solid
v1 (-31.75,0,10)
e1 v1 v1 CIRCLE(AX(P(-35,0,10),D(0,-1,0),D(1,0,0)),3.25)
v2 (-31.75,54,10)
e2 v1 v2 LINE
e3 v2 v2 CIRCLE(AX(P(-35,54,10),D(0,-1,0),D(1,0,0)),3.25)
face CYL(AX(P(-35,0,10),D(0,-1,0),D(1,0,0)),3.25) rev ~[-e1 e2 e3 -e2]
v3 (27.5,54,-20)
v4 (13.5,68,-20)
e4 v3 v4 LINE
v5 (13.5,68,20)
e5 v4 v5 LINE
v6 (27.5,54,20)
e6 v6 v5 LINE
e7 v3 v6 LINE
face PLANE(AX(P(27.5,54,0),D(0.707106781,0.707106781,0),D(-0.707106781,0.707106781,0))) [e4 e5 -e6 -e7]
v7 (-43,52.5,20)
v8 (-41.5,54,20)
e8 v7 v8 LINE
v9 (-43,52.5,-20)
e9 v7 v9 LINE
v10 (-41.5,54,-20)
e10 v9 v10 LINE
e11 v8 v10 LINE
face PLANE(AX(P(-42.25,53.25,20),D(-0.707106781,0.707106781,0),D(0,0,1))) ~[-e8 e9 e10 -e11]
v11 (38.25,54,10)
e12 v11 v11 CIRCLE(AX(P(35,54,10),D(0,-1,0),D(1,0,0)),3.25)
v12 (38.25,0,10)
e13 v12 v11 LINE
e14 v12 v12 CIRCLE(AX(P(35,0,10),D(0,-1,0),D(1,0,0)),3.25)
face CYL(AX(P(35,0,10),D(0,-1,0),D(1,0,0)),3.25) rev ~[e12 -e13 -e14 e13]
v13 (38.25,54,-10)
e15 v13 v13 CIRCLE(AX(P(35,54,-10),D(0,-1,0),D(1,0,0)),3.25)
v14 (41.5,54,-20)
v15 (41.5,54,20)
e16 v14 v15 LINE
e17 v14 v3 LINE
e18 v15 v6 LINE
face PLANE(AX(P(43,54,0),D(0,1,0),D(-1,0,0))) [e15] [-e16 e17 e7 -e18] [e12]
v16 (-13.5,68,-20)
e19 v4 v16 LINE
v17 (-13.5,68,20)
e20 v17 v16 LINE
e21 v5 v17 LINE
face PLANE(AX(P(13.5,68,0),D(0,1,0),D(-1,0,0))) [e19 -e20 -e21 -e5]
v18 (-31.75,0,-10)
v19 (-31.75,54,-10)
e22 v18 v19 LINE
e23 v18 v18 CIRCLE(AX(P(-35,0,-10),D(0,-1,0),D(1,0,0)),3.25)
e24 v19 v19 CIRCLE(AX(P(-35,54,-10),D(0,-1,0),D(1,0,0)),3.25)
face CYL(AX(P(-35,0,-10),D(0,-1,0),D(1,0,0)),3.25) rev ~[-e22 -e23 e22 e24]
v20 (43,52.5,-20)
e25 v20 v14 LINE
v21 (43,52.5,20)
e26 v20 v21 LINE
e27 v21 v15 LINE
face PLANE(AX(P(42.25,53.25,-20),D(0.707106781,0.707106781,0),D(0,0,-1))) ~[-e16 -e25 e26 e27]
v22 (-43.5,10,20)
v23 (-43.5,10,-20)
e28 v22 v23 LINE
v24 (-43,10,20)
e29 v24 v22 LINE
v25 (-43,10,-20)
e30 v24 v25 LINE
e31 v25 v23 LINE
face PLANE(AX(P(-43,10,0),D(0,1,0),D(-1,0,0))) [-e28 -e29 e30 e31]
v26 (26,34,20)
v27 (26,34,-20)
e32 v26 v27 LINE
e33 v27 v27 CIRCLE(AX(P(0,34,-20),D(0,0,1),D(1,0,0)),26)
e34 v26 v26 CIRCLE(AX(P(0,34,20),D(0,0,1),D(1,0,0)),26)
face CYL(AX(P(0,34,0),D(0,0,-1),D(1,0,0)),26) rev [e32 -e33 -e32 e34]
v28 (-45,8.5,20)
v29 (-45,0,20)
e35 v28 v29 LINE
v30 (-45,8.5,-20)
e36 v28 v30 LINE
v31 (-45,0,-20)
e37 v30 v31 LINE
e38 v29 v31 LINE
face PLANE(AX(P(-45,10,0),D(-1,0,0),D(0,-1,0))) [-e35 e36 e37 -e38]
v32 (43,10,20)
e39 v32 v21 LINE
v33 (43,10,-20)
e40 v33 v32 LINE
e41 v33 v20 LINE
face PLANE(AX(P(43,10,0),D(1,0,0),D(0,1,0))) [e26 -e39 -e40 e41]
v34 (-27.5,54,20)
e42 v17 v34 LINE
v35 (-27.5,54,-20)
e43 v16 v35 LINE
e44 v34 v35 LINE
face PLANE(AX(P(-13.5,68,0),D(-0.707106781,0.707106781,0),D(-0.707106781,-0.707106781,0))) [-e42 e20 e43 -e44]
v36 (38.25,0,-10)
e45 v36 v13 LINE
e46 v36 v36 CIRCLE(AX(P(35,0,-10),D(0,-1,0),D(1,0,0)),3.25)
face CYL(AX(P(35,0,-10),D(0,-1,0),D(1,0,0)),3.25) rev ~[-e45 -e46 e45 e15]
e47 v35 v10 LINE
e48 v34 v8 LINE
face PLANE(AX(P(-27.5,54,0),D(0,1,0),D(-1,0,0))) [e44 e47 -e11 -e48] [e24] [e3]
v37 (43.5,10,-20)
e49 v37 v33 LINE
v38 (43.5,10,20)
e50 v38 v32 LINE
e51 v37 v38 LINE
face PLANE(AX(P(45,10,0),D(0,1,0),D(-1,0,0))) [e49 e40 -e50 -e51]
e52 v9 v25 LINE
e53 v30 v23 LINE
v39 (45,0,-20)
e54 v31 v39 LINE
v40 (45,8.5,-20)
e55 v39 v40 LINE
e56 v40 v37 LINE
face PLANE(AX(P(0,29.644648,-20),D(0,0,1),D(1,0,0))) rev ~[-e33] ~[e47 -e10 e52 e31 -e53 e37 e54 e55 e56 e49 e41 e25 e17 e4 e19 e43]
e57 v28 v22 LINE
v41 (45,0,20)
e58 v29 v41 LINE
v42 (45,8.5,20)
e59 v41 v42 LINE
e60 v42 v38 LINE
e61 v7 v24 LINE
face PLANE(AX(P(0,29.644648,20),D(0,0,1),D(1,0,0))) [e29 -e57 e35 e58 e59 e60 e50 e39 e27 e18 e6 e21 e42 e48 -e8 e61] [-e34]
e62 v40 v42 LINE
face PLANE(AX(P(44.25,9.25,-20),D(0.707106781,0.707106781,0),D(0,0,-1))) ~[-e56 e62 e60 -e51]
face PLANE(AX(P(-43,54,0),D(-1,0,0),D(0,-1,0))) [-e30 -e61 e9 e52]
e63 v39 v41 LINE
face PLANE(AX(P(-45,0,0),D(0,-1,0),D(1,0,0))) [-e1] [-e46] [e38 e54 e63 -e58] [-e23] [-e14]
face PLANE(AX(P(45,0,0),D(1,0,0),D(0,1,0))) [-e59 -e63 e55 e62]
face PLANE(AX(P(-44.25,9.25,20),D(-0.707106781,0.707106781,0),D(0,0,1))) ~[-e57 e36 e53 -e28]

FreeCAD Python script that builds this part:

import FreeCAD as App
import Part
import Sketcher

V = App.Vector
Q = App.Units.Quantity


def edges_at(feature, points):
    """Names of the edges that pass closest to the given points."""
    edges = feature.Shape.Edges
    near = lambda p: min(range(len(edges)), key=lambda i: edges[i].distToShape(Part.Vertex(*p))[0])
    return sorted({f"Edge{near(p) + 1}" for p in points})


def add_polygon(sketch, points):
    """Adds a closed chain of lines whose ends are joined by coincident constraints."""
    first, n = sketch.GeometryCount, len(points)
    for a, b in zip(points, points[1:] + points[:1]):
        sketch.addGeometry(Part.LineSegment(App.Vector(*a, 0), App.Vector(*b, 0)), False)
    for i in range(n):
        sketch.addConstraint(Sketcher.Constraint("Coincident", first + i, 2, first + (i + 1) % n, 1))

doc = App.newDocument("Part")
body = doc.addObject("PartDesign::Body", "Body")

# Sketch on XY plane
sketch1 = body.newObject("Sketcher::SketchObject", "Sketch")
sketch1.AttachmentSupport = (doc.getObject("XY_Plane"), [""])
sketch1.MapMode = "FlatFace"
add_polygon(sketch1, [(-45, 0), (45, 0), (45, 10), (43, 10), (43, 54), (27.5, 54), (13.5, 68), (-13.5, 68), (-27.5, 54), (-43, 54), (-43, 10), (-45, 10)])  # lines 0-11
sketch1.addGeometry(Part.Circle(V(0, 34, 0), V(0, 0, 1), 26), False)  # 12
sketch1.addConstraint(Sketcher.Constraint("Horizontal", 0))
sketch1.addConstraint(Sketcher.Constraint("Vertical", 1))
sketch1.addConstraint(Sketcher.Constraint("Horizontal", 2))
sketch1.addConstraint(Sketcher.Constraint("Vertical", 3))
sketch1.addConstraint(Sketcher.Constraint("Horizontal", 4))
sketch1.addConstraint(Sketcher.Constraint("Horizontal", 6))
sketch1.addConstraint(Sketcher.Constraint("Horizontal", 8))
sketch1.addConstraint(Sketcher.Constraint("Vertical", 9))
sketch1.addConstraint(Sketcher.Constraint("Horizontal", 10))
sketch1.addConstraint(Sketcher.Constraint("Vertical", 11))
sketch1.addConstraint(Sketcher.Constraint("Symmetric", 0, 2, 11, 2, -1, 1))
sketch1.addConstraint(Sketcher.Constraint("Symmetric", 4, 2, 7, 2, -2))
sketch1.addConstraint(Sketcher.Constraint("Symmetric", 2, 2, 9, 2, -2))
sketch1.addConstraint(Sketcher.Constraint("PointOnObject", 12, 3, -2))
sketch1.addConstraint(Sketcher.Constraint("Perpendicular", 5, 7))
sketch1.addConstraint(Sketcher.Constraint("Equal", 5, 7))
sketch1.addConstraint(Sketcher.Constraint("Diameter", 12, Q("52 mm")))
sketch1.addConstraint(Sketcher.Constraint("DistanceX", 0, 1, 0, 2, Q("90 mm")))
sketch1.addConstraint(Sketcher.Constraint("DistanceX", 2, 2, 2, 1, Q("2 mm")))
sketch1.addConstraint(Sketcher.Constraint("DistanceX", 6, 2, 6, 1, Q("27 mm")))
sketch1.addConstraint(Sketcher.Constraint("DistanceY", 1, 1, 1, 2, Q("10 mm")))
sketch1.addConstraint(Sketcher.Constraint("DistanceY", 3, 1, 3, 2, Q("44 mm")))
sketch1.addConstraint(Sketcher.Constraint("DistanceX", 4, 2, 4, 1, Q("15.5 mm")))
sketch1.addConstraint(Sketcher.Constraint("DistanceY", -1, 1, 12, 3, Q("34 mm")))
pad1 = body.newObject("PartDesign::Pad", "Pad")
pad1.Profile = sketch1
pad1.Length = 40
pad1.Midplane = True

# Sketch on XZ plane
sketch2 = body.newObject("Sketcher::SketchObject", "Sketch001")
sketch2.AttachmentSupport = (doc.getObject("XZ_Plane"), [""])
sketch2.MapMode = "FlatFace"
sketch2.addGeometry(Part.Circle(V(-35, 10, 0), V(0, 0, 1), 3.2), False)
sketch2.addGeometry(Part.Circle(V(35, 10, 0), V(0, 0, 1), 3.2), False)
sketch2.addGeometry(Part.Circle(V(35, -10, 0), V(0, 0, 1), 3.2), False)
sketch2.addGeometry(Part.Circle(V(-35, -10, 0), V(0, 0, 1), 3.2), False)
sketch2.addConstraint(Sketcher.Constraint("Equal", 0, 1))
sketch2.addConstraint(Sketcher.Constraint("Equal", 1, 2))
sketch2.addConstraint(Sketcher.Constraint("Equal", 2, 3))
sketch2.addConstraint(Sketcher.Constraint("Symmetric", 0, 3, 2, 3, -1, 1))
sketch2.addConstraint(Sketcher.Constraint("Symmetric", 1, 3, 3, 3, -1, 1))
sketch2.addConstraint(Sketcher.Constraint("Symmetric", 0, 3, 1, 3, -2))
sketch2.addConstraint(Sketcher.Constraint("Diameter", 0, Q("6.5 mm")))
sketch2.addConstraint(Sketcher.Constraint("DistanceX", 0, 3, -1, 1, Q("35 mm")))
sketch2.addConstraint(Sketcher.Constraint("DistanceY", -1, 1, 0, 3, Q("10 mm")))
pocket1 = body.newObject("PartDesign::Pocket", "Pocket")
pocket1.Profile = sketch2
pocket1.Length = 55
doc.recompute()

chamfer = body.newObject("PartDesign::Chamfer", "Chamfer")
chamfer.Base = (pocket1, edges_at(pocket1, [
    (45, 10, 0),
    (-45, 10, 0),
    (-43, 54, 0),
    (43, 54, 0),
]))
chamfer.Size = 1.5

doc.recompute()
